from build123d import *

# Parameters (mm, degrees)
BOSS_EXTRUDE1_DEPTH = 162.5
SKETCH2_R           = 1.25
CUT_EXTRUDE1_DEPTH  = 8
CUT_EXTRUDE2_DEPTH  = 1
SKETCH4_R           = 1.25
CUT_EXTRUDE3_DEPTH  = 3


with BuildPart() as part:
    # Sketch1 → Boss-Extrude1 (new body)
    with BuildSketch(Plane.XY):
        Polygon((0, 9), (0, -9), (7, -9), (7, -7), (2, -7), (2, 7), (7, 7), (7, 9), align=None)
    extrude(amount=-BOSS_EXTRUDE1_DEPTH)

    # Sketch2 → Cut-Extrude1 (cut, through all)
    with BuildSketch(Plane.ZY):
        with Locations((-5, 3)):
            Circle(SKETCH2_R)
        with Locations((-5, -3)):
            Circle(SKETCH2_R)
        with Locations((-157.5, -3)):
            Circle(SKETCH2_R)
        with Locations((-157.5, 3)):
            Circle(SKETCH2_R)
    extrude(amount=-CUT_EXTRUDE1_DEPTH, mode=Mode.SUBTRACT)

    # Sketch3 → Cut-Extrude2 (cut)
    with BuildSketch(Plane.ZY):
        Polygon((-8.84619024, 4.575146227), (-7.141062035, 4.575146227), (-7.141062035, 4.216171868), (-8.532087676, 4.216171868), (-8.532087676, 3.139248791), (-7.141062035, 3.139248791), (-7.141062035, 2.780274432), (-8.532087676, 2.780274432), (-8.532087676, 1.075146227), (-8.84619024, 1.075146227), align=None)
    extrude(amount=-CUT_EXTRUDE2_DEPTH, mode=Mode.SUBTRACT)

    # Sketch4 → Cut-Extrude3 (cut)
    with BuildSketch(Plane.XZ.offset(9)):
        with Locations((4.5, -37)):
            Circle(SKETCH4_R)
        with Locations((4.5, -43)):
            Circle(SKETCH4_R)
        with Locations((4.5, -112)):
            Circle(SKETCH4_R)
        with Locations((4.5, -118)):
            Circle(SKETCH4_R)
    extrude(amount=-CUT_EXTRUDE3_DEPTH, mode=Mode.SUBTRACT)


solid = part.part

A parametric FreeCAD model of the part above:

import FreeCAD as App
import Part
import Sketcher

doc = App.newDocument("Part")
body = doc.addObject("PartDesign::Body", "Body")

# Sketch on XY plane
sketch1 = body.newObject("Sketcher::SketchObject", "Sketch")
sketch1.AttachmentSupport = (doc.getObject("XY_Plane"), [""])
sketch1.MapMode = "FlatFace"
sketch1.addGeometry([
    Part.LineSegment(App.Vector(0, 9, 0), App.Vector(0, -9, 0)),  # 0
    Part.LineSegment(App.Vector(0, -9, 0), App.Vector(7, -9, 0)),  # 1
    Part.LineSegment(App.Vector(7, -9, 0), App.Vector(7, -7, 0)),  # 2
    Part.LineSegment(App.Vector(7, -7, 0), App.Vector(2, -7, 0)),  # 3
    Part.LineSegment(App.Vector(2, -7, 0), App.Vector(2, 7, 0)),  # 4
    Part.LineSegment(App.Vector(2, 7, 0), App.Vector(7, 7, 0)),  # 5
    Part.LineSegment(App.Vector(7, 7, 0), App.Vector(7, 9, 0)),  # 6
    Part.LineSegment(App.Vector(7, 9, 0), App.Vector(0, 9, 0)),  # 7
], False)
sketch1.addConstraint([
    Sketcher.Constraint("Coincident", 0, 2, 1, 1),
    Sketcher.Constraint("Coincident", 1, 2, 2, 1),
    Sketcher.Constraint("Coincident", 2, 2, 3, 1),
    Sketcher.Constraint("Coincident", 3, 2, 4, 1),
    Sketcher.Constraint("Coincident", 4, 2, 5, 1),
    Sketcher.Constraint("Coincident", 5, 2, 6, 1),
    Sketcher.Constraint("Coincident", 6, 2, 7, 1),
    Sketcher.Constraint("Coincident", 7, 2, 0, 1),
    Sketcher.Constraint("Vertical", 0),
    Sketcher.Constraint("Horizontal", 1),
    Sketcher.Constraint("Vertical", 2),
    Sketcher.Constraint("Horizontal", 3),
    Sketcher.Constraint("Vertical", 4),
    Sketcher.Constraint("Horizontal", 5),
    Sketcher.Constraint("Vertical", 6),
    Sketcher.Constraint("Horizontal", 7),
    Sketcher.Constraint("Symmetric", 0, 2, 7, 2, -1, 1),
    Sketcher.Constraint("Symmetric", 2, 2, 5, 2, -1),
    Sketcher.Constraint("DistanceX", 1, 1, 1, 2, 7.0),
    Sketcher.Constraint("DistanceX", 3, 2, 3, 1, 5.0),
    Sketcher.Constraint("DistanceY", 0, 2, 0, 1, 18.0),
    Sketcher.Constraint("DistanceY", 2, 1, 2, 2, 2.0),
])
pad1 = body.newObject("PartDesign::Pad", "Pad")
pad1.Profile = sketch1
pad1.Length = 162.5
pad1.Reversed = True

# Sketch on YZ plane
sketch2 = body.newObject("Sketcher::SketchObject", "Sketch001")
sketch2.AttachmentSupport = (doc.getObject("YZ_Plane"), [""])
sketch2.MapMode = "FlatFace"
sketch2.addGeometry([
    Part.Circle(App.Vector(3, -5, 0), App.Vector(0, 0, 1), 1.25),
    Part.Circle(App.Vector(-3, -5, 0), App.Vector(0, 0, 1), 1.25),
    Part.Circle(App.Vector(-3, -157.5, 0), App.Vector(0, 0, 1), 1.25),
    Part.Circle(App.Vector(3, -157.5, 0), App.Vector(0, 0, 1), 1.25),
], False)
sketch2.addConstraint([
    Sketcher.Constraint("Equal", 0, 1),
    Sketcher.Constraint("Equal", 1, 2),
    Sketcher.Constraint("Equal", 2, 3),
    Sketcher.Constraint("Symmetric", 0, 3, 1, 3, -2),
    Sketcher.Constraint("Symmetric", 2, 3, 3, 3, -2),
    Sketcher.Constraint("Vertical", 1, 3, 2, 3),
    Sketcher.Constraint("Diameter", 0, 2.5),
    Sketcher.Constraint("DistanceX", -1, 1, 0, 3, 3.0),
    Sketcher.Constraint("DistanceY", 0, 3, -1, 1, 5.0),
    Sketcher.Constraint("DistanceY", 2, 3, -1, 1, 157.5),
])
pocket1 = body.newObject("PartDesign::Pocket", "Pocket")
pocket1.Profile = sketch2
pocket1.Type = "ThroughAll"
pocket1.Reversed = True

# Sketch on YZ plane
sketch3 = body.newObject("Sketcher::SketchObject", "Sketch002")
sketch3.AttachmentSupport = (doc.getObject("YZ_Plane"), [""])
sketch3.MapMode = "FlatFace"
sketch3.addGeometry([
    Part.LineSegment(App.Vector(4.575146, -7.141062, 0), App.Vector(4.575146, -8.84619, 0)),  # 0
    Part.LineSegment(App.Vector(4.575146, -8.84619, 0), App.Vector(1.075146, -8.84619, 0)),  # 1
    Part.LineSegment(App.Vector(1.075146, -8.84619, 0), App.Vector(1.075146, -8.532088, 0)),  # 2
    Part.LineSegment(App.Vector(1.075146, -8.532088, 0), App.Vector(2.780274, -8.532088, 0)),  # 3
    Part.LineSegment(App.Vector(2.780274, -8.532088, 0), App.Vector(2.780274, -7.141062, 0)),  # 4
    Part.LineSegment(App.Vector(2.780274, -7.141062, 0), App.Vector(3.139249, -7.141062, 0)),  # 5
    Part.LineSegment(App.Vector(3.139249, -7.141062, 0), App.Vector(3.139249, -8.532088, 0)),  # 6
    Part.LineSegment(App.Vector(3.139249, -8.532088, 0), App.Vector(4.216172, -8.532088, 0)),  # 7
    Part.LineSegment(App.Vector(4.216172, -8.532088, 0), App.Vector(4.216172, -7.141062, 0)),  # 8
    Part.LineSegment(App.Vector(4.216172, -7.141062, 0), App.Vector(4.575146, -7.141062, 0)),  # 9
], False)
sketch3.addConstraint([
    Sketcher.Constraint("Coincident", 0, 2, 1, 1),
    Sketcher.Constraint("Coincident", 1, 2, 2, 1),
    Sketcher.Constraint("Coincident", 2, 2, 3, 1),
    Sketcher.Constraint("Coincident", 3, 2, 4, 1),
    Sketcher.Constraint("Coincident", 4, 2, 5, 1),
    Sketcher.Constraint("Coincident", 5, 2, 6, 1),
    Sketcher.Constraint("Coincident", 6, 2, 7, 1),
    Sketcher.Constraint("Coincident", 7, 2, 8, 1),
    Sketcher.Constraint("Coincident", 8, 2, 9, 1),
    Sketcher.Constraint("Coincident", 9, 2, 0, 1),
    Sketcher.Constraint("Vertical", 0),
    Sketcher.Constraint("Horizontal", 1),
    Sketcher.Constraint("Vertical", 2),
    Sketcher.Constraint("Horizontal", 3),
    Sketcher.Constraint("Vertical", 4),
    Sketcher.Constraint("Horizontal", 5),
    Sketcher.Constraint("Vertical", 6),
    Sketcher.Constraint("Horizontal", 7),
    Sketcher.Constraint("Vertical", 8),
    Sketcher.Constraint("Horizontal", 9),
    Sketcher.Constraint("Horizontal", 3, 2, 6, 2),
    Sketcher.Constraint("Horizontal", 5, 2, 8, 2),
    Sketcher.Constraint("Equal", 5, 9),
    Sketcher.Constraint("Equal", 3, 0),
    Sketcher.Constraint("DistanceX", 1, 2, 1, 1, 3.5),
    Sketcher.Constraint("DistanceX", 3, 1, 3, 2, 1.705128),
    Sketcher.Constraint("DistanceX", 5, 1, 5, 2, 0.358974),
    Sketcher.Constraint("DistanceY", 2, 1, 2, 2, 0.314103),
    Sketcher.Constraint("DistanceY", 0, 2, -1, 1, 8.84619),
    Sketcher.Constraint("DistanceX", -1, 1, 5, 2, 3.139249),
])
pocket2 = body.newObject("PartDesign::Pocket", "Pocket001")
pocket2.Profile = sketch3
pocket2.Length = 1
pocket2.Reversed = True

# Sketch on XZ plane
sketch4 = body.newObject("Sketcher::SketchObject", "Sketch003")
sketch4.AttachmentSupport = (doc.getObject("XZ_Plane"), [""])
sketch4.MapMode = "FlatFace"
sketch4.AttachmentOffset = App.Placement(App.Vector(0, 0, 9), App.Rotation())
sketch4.addGeometry([
    Part.Circle(App.Vector(4.5, -37, 0), App.Vector(0, 0, 1), 1.25),
    Part.Circle(App.Vector(4.5, -43, 0), App.Vector(0, 0, 1), 1.25),
    Part.Circle(App.Vector(4.5, -112, 0), App.Vector(0, 0, 1), 1.25),
    Part.Circle(App.Vector(4.5, -118, 0), App.Vector(0, 0, 1), 1.25),
], False)
sketch4.addConstraint([
    Sketcher.Constraint("Equal", 0, 1),
    Sketcher.Constraint("Equal", 1, 2),
    Sketcher.Constraint("Equal", 2, 3),
    Sketcher.Constraint("Vertical", 0, 3, 1, 3),
    Sketcher.Constraint("Vertical", 1, 3, 2, 3),
    Sketcher.Constraint("Vertical", 2, 3, 3, 3),
    Sketcher.Constraint("Diameter", 0, 2.5),
    Sketcher.Constraint("DistanceY", 0, 3, -1, 1, 37.0),
    Sketcher.Constraint("DistanceY", 1, 3, -1, 1, 43.0),
    Sketcher.Constraint("DistanceY", 2, 3, -1, 1, 112.0),
    Sketcher.Constraint("DistanceY", 3, 3, -1, 1, 118.0),
    Sketcher.Constraint("DistanceX", -1, 1, 0, 3, 4.5),
])
pocket3 = body.newObject("PartDesign::Pocket", "Pocket002")
pocket3.Profile = sketch4
pocket3.Length = 3

doc.recompute()
